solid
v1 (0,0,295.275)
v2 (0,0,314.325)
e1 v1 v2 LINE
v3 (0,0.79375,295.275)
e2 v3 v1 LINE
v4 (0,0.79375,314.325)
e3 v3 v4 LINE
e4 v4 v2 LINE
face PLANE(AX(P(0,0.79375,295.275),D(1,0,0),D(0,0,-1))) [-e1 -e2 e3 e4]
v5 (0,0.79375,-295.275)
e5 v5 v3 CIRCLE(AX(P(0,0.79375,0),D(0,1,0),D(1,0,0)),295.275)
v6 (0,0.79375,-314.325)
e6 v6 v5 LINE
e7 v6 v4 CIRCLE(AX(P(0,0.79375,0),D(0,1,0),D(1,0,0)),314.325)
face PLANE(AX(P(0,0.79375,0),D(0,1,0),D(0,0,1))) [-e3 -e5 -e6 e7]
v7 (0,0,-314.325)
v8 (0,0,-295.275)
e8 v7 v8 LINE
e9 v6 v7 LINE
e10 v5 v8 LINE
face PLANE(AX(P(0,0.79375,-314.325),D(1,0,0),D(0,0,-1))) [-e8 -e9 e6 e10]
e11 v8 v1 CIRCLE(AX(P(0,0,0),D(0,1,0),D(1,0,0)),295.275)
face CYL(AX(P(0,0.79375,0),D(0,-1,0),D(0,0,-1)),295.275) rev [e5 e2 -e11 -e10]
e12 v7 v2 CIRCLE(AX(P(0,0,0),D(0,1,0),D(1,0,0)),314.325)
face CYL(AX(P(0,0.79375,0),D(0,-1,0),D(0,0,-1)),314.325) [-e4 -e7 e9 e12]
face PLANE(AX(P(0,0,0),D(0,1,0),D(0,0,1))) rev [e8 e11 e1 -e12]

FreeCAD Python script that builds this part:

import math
import FreeCAD as App
import Part
import Sketcher
from FreeCAD import Vector
Q = App.Units.Quantity

doc = App.newDocument("Part")
body = doc.addObject("PartDesign::Body", "Body")

# Sketch on XZ plane
sketch1 = body.newObject("Sketcher::SketchObject", "Sketch")
sketch1.AttachmentSupport = (doc.getObject("XZ_Plane"), [""])
sketch1.MapMode = "FlatFace"
sketch1.addGeometry([
    Part.ArcOfCircle(Part.Circle(Vector(0, 0, 0), Vector(0, 0, 1), 314), math.radians(90), math.radians(270)),
    Part.LineSegment(Vector(0, 314, 0), Vector(0, 295, 0)),
    Part.ArcOfCircle(Part.Circle(Vector(0, 0, 0), Vector(0, 0, 1), 295), math.radians(90), math.radians(270)),
    Part.LineSegment(Vector(0, -295, 0), Vector(0, -314, 0)),
], False)
sketch1.addConstraint([
    Sketcher.Constraint("Coincident", 0, 1, 1, 1),
    Sketcher.Constraint("Coincident", 1, 2, 2, 1),
    Sketcher.Constraint("Coincident", 2, 2, 3, 1),
    Sketcher.Constraint("Coincident", 3, 2, 0, 2),
    Sketcher.Constraint("Vertical", 1),
    Sketcher.Constraint("Vertical", 3),
    Sketcher.Constraint("Coincident", 0, 3, -1, 1),
    Sketcher.Constraint("Coincident", 2, 3, -1, 1),
    Sketcher.Constraint("PointOnObject", 0, 1, -2),
    Sketcher.Constraint("PointOnObject", 2, 2, -2),
    Sketcher.Constraint("Radius", 0, Q("12.375 in")),
    Sketcher.Constraint("Radius", 2, Q("11.625 in")),
])
pad1 = body.newObject("PartDesign::Pad", "Pad")
pad1.Profile = sketch1
pad1.Length = Q("0.03125 in")
pad1.Reversed = True

doc.recompute()
